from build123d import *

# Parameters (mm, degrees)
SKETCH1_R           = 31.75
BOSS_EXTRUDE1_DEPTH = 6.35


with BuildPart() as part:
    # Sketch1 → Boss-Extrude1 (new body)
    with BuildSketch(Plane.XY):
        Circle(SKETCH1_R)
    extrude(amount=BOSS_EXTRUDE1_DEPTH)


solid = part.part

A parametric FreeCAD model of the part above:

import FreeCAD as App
import Part
import Sketcher
from FreeCAD import Vector
Q = App.Units.Quantity

doc = App.newDocument("Part")
body = doc.addObject("PartDesign::Body", "Body")

sketch1 = body.newObject("Sketcher::SketchObject", "Sketch")
sketch1.AttachmentSupport = (doc.getObject("XY_Plane"), [""])
sketch1.MapMode = "FlatFace"
sketch1.addGeometry(Part.Circle(Vector(0, 0, 0), Vector(0, 0, 1), 32), False)
sketch1.addConstraint(Sketcher.Constraint("Coincident", 0, 3, -1, 1))
sketch1.addConstraint(Sketcher.Constraint("Diameter", 0, Q("2.5 in")))
pad1 = body.newObject("PartDesign::Pad", "Pad")
pad1.Profile = sketch1
pad1.Length = Q("0.25 in")

doc.recompute()
